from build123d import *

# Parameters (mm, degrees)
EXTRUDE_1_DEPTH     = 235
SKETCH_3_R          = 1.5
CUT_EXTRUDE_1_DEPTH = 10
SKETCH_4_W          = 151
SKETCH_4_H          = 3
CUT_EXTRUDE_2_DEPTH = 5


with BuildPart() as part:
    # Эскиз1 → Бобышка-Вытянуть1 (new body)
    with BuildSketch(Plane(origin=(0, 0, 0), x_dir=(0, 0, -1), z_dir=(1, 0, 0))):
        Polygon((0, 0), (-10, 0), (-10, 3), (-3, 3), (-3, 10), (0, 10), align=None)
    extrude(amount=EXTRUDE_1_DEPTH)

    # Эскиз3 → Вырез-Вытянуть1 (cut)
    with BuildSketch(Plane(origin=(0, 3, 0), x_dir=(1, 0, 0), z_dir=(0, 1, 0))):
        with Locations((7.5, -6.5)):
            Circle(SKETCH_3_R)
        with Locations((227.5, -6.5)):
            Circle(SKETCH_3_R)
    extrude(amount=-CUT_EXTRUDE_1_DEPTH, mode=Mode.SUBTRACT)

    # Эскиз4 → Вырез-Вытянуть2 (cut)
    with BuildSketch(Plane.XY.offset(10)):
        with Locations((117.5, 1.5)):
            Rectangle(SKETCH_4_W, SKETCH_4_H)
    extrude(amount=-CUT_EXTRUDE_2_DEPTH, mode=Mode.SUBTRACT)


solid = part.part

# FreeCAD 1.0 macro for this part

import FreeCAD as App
import Part
import Sketcher

V = App.Vector

doc = App.newDocument("Part")
params = doc.addObject("Spreadsheet::Sheet", "Params")
for row, (alias, value) in enumerate([
    ("sketch1_width", "10 mm"),
    ("sketch1_width2", "7 mm"),
    ("pad1_length", "235 mm"),
    ("sketch2_diameter", "3 mm"),
    ("pocket1_length", "10 mm"),
    ("sketch3_width", "151 mm"),
    ("sketch3_height", "3 mm"),
    ("pocket2_length", "5 mm"),
], start=1):
    params.set(f"A{row}", alias)
    params.set(f"B{row}", "=" + value)
    params.setAlias(f"B{row}", alias)

body = doc.addObject("PartDesign::Body", "Body")

sketch1 = doc.addObject("Sketcher::SketchObject", "Sketch")
body.addObject(sketch1)
sketch1.AttachmentSupport = (doc.YZ_Plane, [""])
sketch1.MapMode = "FlatFace"
sketch1.addGeometry(Part.LineSegment(V(0, 10, 0), V(0, 0, 0)), False)
sketch1.addGeometry(Part.LineSegment(V(0, 0, 0), V(10, 0, 0)), False)
sketch1.addGeometry(Part.LineSegment(V(10, 0, 0), V(10, 3, 0)), False)
sketch1.addGeometry(Part.LineSegment(V(10, 3, 0), V(3, 3, 0)), False)
sketch1.addGeometry(Part.LineSegment(V(3, 3, 0), V(3, 10, 0)), False)
sketch1.addGeometry(Part.LineSegment(V(3, 10, 0), V(0, 10, 0)), False)
sketch1.addConstraint(Sketcher.Constraint("Coincident", 0, 2, 1, 1))
sketch1.addConstraint(Sketcher.Constraint("Coincident", 1, 2, 2, 1))
sketch1.addConstraint(Sketcher.Constraint("Coincident", 2, 2, 3, 1))
sketch1.addConstraint(Sketcher.Constraint("Coincident", 3, 2, 4, 1))
sketch1.addConstraint(Sketcher.Constraint("Coincident", 4, 2, 5, 1))
sketch1.addConstraint(Sketcher.Constraint("Coincident", 5, 2, 0, 1))
sketch1.addConstraint(Sketcher.Constraint("Vertical", 0))
sketch1.addConstraint(Sketcher.Constraint("Horizontal", 1))
sketch1.addConstraint(Sketcher.Constraint("Vertical", 2))
sketch1.addConstraint(Sketcher.Constraint("Horizontal", 3))
sketch1.addConstraint(Sketcher.Constraint("Vertical", 4))
sketch1.addConstraint(Sketcher.Constraint("Horizontal", 5))
sketch1.addConstraint(Sketcher.Constraint("Coincident", 0, 2, -1, 1))
sketch1.addConstraint(Sketcher.Constraint("Equal", 1, 0))
sketch1.addConstraint(Sketcher.Constraint("Equal", 5, 2))
sketch1.addConstraint(Sketcher.Constraint("DistanceX", 1, 1, 1, 2, 10.0))
sketch1.addConstraint(Sketcher.Constraint("DistanceX", 3, 2, 3, 1, 7.0))
sketch1.setExpression("Constraints[15]", "Params.sketch1_width")
sketch1.setExpression("Constraints[16]", "Params.sketch1_width2")
pad1 = doc.addObject("PartDesign::Pad", "Pad")
body.addObject(pad1)
pad1.Profile = sketch1
pad1.setExpression("Length", "Params.pad1_length")

sketch2 = doc.addObject("Sketcher::SketchObject", "Sketch001")
body.addObject(sketch2)
sketch2.AttachmentSupport = (doc.XZ_Plane, [""])
sketch2.MapMode = "FlatFace"
sketch2.AttachmentOffset = App.Placement(V(0, 0, -3), App.Rotation())
sketch2.addGeometry(Part.Circle(V(7.5, 6.5, 0), V(0, 0, 1), 1.5), False)
sketch2.addGeometry(Part.Circle(V(227.5, 6.5, 0), V(0, 0, 1), 1.5), False)
sketch2.addConstraint(Sketcher.Constraint("Equal", 0, 1))
sketch2.addConstraint(Sketcher.Constraint("Horizontal", 0, 3, 1, 3))
sketch2.addConstraint(Sketcher.Constraint("Diameter", 0, 3.0))
sketch2.addConstraint(Sketcher.Constraint("DistanceX", 0, 3, 1, 3, 220.0))
sketch2.addConstraint(Sketcher.Constraint("DistanceX", -1, 1, 0, 3, 7.5))
sketch2.addConstraint(Sketcher.Constraint("DistanceY", -1, 1, 0, 3, 6.5))
sketch2.setExpression("Constraints[2]", "Params.sketch2_diameter")
pocket1 = doc.addObject("PartDesign::Pocket", "Pocket")
body.addObject(pocket1)
pocket1.Profile = sketch2
pocket1.setExpression("Length", "Params.pocket1_length")
pocket1.Reversed = True

sketch3 = doc.addObject("Sketcher::SketchObject", "Sketch002")
body.addObject(sketch3)
sketch3.AttachmentSupport = (doc.XY_Plane, [""])
sketch3.MapMode = "FlatFace"
sketch3.AttachmentOffset = App.Placement(V(0, 0, 10), App.Rotation())
sketch3.addGeometry(Part.LineSegment(V(42, 3, 0), V(42, 0, 0)), False)
sketch3.addGeometry(Part.LineSegment(V(42, 0, 0), V(193, 0, 0)), False)
sketch3.addGeometry(Part.LineSegment(V(193, 0, 0), V(193, 3, 0)), False)
sketch3.addGeometry(Part.LineSegment(V(193, 3, 0), V(42, 3, 0)), False)
sketch3.addConstraint(Sketcher.Constraint("Coincident", 0, 2, 1, 1))
sketch3.addConstraint(Sketcher.Constraint("Coincident", 1, 2, 2, 1))
sketch3.addConstraint(Sketcher.Constraint("Coincident", 2, 2, 3, 1))
sketch3.addConstraint(Sketcher.Constraint("Coincident", 3, 2, 0, 1))
sketch3.addConstraint(Sketcher.Constraint("Vertical", 0))
sketch3.addConstraint(Sketcher.Constraint("Horizontal", 1))
sketch3.addConstraint(Sketcher.Constraint("Vertical", 2))
sketch3.addConstraint(Sketcher.Constraint("Horizontal", 3))
sketch3.addConstraint(Sketcher.Constraint("PointOnObject", 0, 2, -1))
sketch3.addConstraint(Sketcher.Constraint("DistanceX", 1, 1, 1, 2, 151.0))
sketch3.addConstraint(Sketcher.Constraint("DistanceY", 0, 2, 0, 1, 3.0))
sketch3.addConstraint(Sketcher.Constraint("DistanceX", -1, 1, 0, 2, 42.0))
sketch3.setExpression("Constraints[9]", "Params.sketch3_width")
sketch3.setExpression("Constraints[10]", "Params.sketch3_height")
pocket2 = doc.addObject("PartDesign::Pocket", "Pocket001")
body.addObject(pocket2)
pocket2.Profile = sketch3
pocket2.setExpression("Length", "Params.pocket2_length")

doc.recompute()
